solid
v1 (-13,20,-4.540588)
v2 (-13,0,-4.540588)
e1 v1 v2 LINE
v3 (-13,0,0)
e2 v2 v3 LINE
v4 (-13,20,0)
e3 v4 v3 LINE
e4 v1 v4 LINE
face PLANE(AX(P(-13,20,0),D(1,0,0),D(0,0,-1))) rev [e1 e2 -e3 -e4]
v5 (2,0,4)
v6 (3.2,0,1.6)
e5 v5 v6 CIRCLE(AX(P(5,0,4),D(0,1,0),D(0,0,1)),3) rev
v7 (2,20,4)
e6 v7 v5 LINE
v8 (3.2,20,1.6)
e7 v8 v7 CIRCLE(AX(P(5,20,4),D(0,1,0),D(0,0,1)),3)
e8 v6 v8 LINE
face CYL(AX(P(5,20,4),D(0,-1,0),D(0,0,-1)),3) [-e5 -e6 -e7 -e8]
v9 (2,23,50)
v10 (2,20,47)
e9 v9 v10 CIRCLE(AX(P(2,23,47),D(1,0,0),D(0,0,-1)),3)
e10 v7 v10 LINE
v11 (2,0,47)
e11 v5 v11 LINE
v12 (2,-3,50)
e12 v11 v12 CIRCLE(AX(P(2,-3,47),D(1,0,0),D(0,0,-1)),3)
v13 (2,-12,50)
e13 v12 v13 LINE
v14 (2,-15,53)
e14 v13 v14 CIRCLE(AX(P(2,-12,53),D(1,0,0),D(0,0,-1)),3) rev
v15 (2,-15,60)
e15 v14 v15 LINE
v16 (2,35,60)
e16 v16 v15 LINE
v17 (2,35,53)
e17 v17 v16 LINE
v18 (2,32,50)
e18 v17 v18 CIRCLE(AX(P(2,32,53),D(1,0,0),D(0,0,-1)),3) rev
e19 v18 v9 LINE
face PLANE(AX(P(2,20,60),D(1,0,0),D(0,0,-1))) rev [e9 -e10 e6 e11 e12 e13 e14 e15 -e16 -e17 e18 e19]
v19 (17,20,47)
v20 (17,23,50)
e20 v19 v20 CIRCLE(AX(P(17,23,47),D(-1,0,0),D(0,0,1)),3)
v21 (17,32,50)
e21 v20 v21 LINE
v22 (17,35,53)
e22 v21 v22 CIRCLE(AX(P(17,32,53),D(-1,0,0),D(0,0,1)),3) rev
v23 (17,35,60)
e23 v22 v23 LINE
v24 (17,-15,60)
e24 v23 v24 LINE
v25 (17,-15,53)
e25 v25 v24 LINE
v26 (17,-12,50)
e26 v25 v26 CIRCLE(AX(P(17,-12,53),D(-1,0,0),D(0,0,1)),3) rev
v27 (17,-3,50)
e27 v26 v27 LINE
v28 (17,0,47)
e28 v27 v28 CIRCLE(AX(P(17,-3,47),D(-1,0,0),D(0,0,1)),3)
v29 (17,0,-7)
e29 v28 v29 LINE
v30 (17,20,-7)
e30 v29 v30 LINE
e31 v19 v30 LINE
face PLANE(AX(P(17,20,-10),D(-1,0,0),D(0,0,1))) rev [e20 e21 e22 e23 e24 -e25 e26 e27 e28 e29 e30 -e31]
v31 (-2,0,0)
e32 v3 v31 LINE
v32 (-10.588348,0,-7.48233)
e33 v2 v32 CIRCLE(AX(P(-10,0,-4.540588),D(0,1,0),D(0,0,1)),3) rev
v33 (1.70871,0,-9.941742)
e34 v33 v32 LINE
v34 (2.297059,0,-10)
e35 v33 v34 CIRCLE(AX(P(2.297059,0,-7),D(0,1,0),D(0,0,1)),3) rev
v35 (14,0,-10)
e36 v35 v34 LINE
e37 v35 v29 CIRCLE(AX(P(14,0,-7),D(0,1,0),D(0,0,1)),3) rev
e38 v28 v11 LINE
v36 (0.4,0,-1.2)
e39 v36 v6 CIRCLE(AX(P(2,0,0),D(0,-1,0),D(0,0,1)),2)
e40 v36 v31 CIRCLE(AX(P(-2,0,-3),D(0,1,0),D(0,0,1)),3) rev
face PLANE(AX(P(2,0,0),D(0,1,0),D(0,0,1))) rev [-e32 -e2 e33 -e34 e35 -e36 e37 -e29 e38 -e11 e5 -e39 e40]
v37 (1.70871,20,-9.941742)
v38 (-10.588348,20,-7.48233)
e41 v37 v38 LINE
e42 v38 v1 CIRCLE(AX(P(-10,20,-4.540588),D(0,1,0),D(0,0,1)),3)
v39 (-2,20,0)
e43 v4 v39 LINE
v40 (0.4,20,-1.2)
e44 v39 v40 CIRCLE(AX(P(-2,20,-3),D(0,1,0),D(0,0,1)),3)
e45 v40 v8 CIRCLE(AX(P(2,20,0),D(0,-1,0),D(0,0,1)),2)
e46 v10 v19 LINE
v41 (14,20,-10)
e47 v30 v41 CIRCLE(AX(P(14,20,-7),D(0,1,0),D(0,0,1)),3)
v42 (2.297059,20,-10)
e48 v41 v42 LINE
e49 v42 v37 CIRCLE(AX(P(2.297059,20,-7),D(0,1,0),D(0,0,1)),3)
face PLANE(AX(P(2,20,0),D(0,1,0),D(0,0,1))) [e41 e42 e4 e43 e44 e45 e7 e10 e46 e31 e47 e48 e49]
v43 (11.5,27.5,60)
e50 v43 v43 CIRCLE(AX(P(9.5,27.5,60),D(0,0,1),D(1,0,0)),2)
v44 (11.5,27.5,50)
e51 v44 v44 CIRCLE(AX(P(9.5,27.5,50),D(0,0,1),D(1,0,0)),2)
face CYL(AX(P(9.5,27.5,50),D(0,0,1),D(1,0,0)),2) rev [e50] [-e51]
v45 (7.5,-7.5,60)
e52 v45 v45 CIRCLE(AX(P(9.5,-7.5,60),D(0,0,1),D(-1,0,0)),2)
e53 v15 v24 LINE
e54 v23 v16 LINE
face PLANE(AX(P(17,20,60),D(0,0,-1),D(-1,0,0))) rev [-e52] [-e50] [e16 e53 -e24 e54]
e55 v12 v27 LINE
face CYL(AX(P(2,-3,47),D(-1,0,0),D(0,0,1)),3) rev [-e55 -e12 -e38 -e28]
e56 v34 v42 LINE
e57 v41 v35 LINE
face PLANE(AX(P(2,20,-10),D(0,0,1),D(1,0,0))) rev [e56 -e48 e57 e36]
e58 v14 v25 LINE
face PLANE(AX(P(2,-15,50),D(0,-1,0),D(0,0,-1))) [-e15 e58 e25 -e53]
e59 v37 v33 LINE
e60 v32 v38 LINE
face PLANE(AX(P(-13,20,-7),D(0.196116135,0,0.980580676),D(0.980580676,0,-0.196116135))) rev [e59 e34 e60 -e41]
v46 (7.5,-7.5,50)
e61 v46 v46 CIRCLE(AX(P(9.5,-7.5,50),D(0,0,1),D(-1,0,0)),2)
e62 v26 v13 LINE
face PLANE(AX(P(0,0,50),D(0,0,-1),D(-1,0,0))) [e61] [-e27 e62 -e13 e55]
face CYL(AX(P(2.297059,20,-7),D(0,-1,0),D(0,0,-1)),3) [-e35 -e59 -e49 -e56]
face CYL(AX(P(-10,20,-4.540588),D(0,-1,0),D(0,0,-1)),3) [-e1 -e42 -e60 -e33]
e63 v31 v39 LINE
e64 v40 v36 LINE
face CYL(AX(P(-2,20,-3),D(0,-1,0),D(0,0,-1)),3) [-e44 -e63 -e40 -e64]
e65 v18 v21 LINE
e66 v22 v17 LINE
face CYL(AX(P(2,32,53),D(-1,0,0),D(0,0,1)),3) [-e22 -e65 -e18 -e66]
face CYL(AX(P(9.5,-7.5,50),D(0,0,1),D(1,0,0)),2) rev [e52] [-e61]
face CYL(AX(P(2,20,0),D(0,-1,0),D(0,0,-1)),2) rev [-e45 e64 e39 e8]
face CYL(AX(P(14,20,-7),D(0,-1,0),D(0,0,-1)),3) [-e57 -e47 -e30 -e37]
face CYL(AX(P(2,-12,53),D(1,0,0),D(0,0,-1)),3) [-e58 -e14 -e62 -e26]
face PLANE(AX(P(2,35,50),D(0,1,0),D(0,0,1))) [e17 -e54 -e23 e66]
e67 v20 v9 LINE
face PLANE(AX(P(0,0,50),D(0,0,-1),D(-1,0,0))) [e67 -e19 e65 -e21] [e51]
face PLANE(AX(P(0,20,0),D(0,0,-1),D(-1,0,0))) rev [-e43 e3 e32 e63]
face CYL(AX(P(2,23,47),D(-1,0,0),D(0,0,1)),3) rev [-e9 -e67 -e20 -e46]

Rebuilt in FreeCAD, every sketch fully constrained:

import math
import FreeCAD as App
import Part
import Sketcher
from FreeCAD import Vector
Q = App.Units.Quantity


def edges_at(feature, points):
    """Names of the edges that pass closest to the given points."""
    edges = feature.Shape.Edges
    near = lambda p: min(range(len(edges)), key=lambda i: edges[i].distToShape(Part.Vertex(*p))[0])
    return sorted({f"Edge{near(p) + 1}" for p in points})


def add_polygon(sketch, points):
    """Adds a closed chain of lines whose ends are joined by coincident constraints."""
    first, n = sketch.GeometryCount, len(points)
    for a, b in zip(points, points[1:] + points[:1]):
        sketch.addGeometry(Part.LineSegment(App.Vector(*a, 0), App.Vector(*b, 0)), False)
    for i in range(n):
        sketch.addConstraint(Sketcher.Constraint("Coincident", first + i, 2, first + (i + 1) % n, 1))

doc = App.newDocument("Part")
body = doc.addObject("PartDesign::Body", "Body")

sketch1 = body.newObject("Sketcher::SketchObject", "Sketch")
sketch1.AttachmentSupport = (doc.getObject("XZ_Plane"), [""])
sketch1.MapMode = "FlatFace"
sketch1.addGeometry([
    Part.LineSegment(Vector(-13, 0, 0), Vector(0, 0, 0)),
    Part.ArcOfCircle(Part.Circle(Vector(2, 0, 0), Vector(0, 0, 1), 2), math.radians(180), math.radians(450)),
    Part.LineSegment(Vector(2, 2, 0), Vector(2, 60, 0)),
    Part.LineSegment(Vector(2, 60, 0), Vector(17, 60, 0)),
    Part.LineSegment(Vector(17, 60, 0), Vector(17, -10, 0)),
    Part.LineSegment(Vector(17, -10, 0), Vector(2, -10, 0)),
    Part.LineSegment(Vector(2, -10, 0), Vector(-13, -7, 0)),
    Part.LineSegment(Vector(-13, -7, 0), Vector(-13, 0, 0)),
], False)
sketch1.addConstraint([
    Sketcher.Constraint("Coincident", 0, 2, 1, 1),
    Sketcher.Constraint("Coincident", 1, 2, 2, 1),
    Sketcher.Constraint("Coincident", 2, 2, 3, 1),
    Sketcher.Constraint("Coincident", 3, 2, 4, 1),
    Sketcher.Constraint("Coincident", 4, 2, 5, 1),
    Sketcher.Constraint("Coincident", 5, 2, 6, 1),
    Sketcher.Constraint("Coincident", 6, 2, 7, 1),
    Sketcher.Constraint("Coincident", 7, 2, 0, 1),
    Sketcher.Constraint("Horizontal", 0),
    Sketcher.Constraint("Vertical", 2),
    Sketcher.Constraint("Horizontal", 3),
    Sketcher.Constraint("Vertical", 4),
    Sketcher.Constraint("Horizontal", 5),
    Sketcher.Constraint("Vertical", 7),
    Sketcher.Constraint("Coincident", 0, 2, -1, 1),
    Sketcher.Constraint("PointOnObject", 1, 3, -1),
    Sketcher.Constraint("Vertical", 2, 2, 5, 2),
    Sketcher.Constraint("Radius", 1, Q("2 mm")),
    Sketcher.Constraint("DistanceX", 0, 1, 0, 2, Q("13 mm")),
    Sketcher.Constraint("DistanceX", 3, 1, 3, 2, Q("15 mm")),
    Sketcher.Constraint("DistanceY", 2, 1, 2, 2, Q("58 mm")),
    Sketcher.Constraint("DistanceY", 4, 2, 4, 1, Q("70 mm")),
    Sketcher.Constraint("DistanceY", 7, 1, 7, 2, Q("7 mm")),
    Sketcher.Constraint("DistanceX", -1, 1, 1, 2, Q("2 mm")),
])
pad1 = body.newObject("PartDesign::Pad", "Pad")
pad1.Profile = sketch1
pad1.Length = 20
pad1.Reversed = True

sketch2 = body.newObject("Sketcher::SketchObject", "Sketch001")
sketch2.AttachmentSupport = (doc.getObject("XY_Plane"), [""])
sketch2.MapMode = "FlatFace"
sketch2.AttachmentOffset = App.Placement(Vector(0, 0, 60), App.Rotation())
add_polygon(sketch2, [(2, 35), (2, 20), (17, 20), (17, 35)])
sketch2.addGeometry(Part.Circle(Vector(9.5, 27.5, 0), Vector(0, 0, 1), 2), False)
add_polygon(sketch2, [(2, 0), (2, -15), (17, -15), (17, 0)])
sketch2.addGeometry(Part.Circle(Vector(9.5, -7.5, 0), Vector(0, 0, 1), 2), False)
sketch2.addConstraint([
    Sketcher.Constraint("Vertical", 0),
    Sketcher.Constraint("Horizontal", 1),
    Sketcher.Constraint("Vertical", 2),
    Sketcher.Constraint("Horizontal", 3),
    Sketcher.Constraint("Vertical", 5),
    Sketcher.Constraint("Horizontal", 6),
    Sketcher.Constraint("Vertical", 7),
    Sketcher.Constraint("Horizontal", 8),
    Sketcher.Constraint("Equal", 4, 9),
    Sketcher.Constraint("PointOnObject", 7, 2, -1),
    Sketcher.Constraint("Vertical", 4, 3, 9, 3),
    Sketcher.Constraint("Vertical", 3, 2, 5, 2),
    Sketcher.Constraint("Vertical", 2, 2, 6, 2),
    Sketcher.Constraint("Equal", 8, 0),
    Sketcher.Constraint("Equal", 2, 5),
    Sketcher.Constraint("Diameter", 4, Q("4 mm")),
    Sketcher.Constraint("DistanceX", 1, 1, 1, 2, Q("15 mm")),
    Sketcher.Constraint("DistanceX", -1, 1, 0, 2, Q("2 mm")),
    Sketcher.Constraint("DistanceY", -1, 1, 0, 2, Q("20 mm")),
    Sketcher.Constraint("DistanceY", 9, 3, 4, 3, Q("35 mm")),
    Sketcher.Constraint("DistanceX", -1, 1, 4, 3, Q("9.5 mm")),
    Sketcher.Constraint("DistanceY", -1, 1, 4, 3, Q("27.5 mm")),
])
pad2 = body.newObject("PartDesign::Pad", "Pad001")
pad2.Profile = sketch2
pad2.Length = 10
pad2.Reversed = True
doc.recompute()

fillet = body.newObject("PartDesign::Fillet", "Fillet")
fillet.Base = (pad2, edges_at(pad2, [
    (0, 10, 0),
    (-13, 10, -7),
    (2, 10, -10),
    (17, 10, -10),
    (2, 10, 2),
    (9.5, 35, 50),
    (9.5, 20, 50),
    (9.5, 0, 50),
    (9.5, -15, 50),
]))
fillet.Radius = 3

doc.recompute()
